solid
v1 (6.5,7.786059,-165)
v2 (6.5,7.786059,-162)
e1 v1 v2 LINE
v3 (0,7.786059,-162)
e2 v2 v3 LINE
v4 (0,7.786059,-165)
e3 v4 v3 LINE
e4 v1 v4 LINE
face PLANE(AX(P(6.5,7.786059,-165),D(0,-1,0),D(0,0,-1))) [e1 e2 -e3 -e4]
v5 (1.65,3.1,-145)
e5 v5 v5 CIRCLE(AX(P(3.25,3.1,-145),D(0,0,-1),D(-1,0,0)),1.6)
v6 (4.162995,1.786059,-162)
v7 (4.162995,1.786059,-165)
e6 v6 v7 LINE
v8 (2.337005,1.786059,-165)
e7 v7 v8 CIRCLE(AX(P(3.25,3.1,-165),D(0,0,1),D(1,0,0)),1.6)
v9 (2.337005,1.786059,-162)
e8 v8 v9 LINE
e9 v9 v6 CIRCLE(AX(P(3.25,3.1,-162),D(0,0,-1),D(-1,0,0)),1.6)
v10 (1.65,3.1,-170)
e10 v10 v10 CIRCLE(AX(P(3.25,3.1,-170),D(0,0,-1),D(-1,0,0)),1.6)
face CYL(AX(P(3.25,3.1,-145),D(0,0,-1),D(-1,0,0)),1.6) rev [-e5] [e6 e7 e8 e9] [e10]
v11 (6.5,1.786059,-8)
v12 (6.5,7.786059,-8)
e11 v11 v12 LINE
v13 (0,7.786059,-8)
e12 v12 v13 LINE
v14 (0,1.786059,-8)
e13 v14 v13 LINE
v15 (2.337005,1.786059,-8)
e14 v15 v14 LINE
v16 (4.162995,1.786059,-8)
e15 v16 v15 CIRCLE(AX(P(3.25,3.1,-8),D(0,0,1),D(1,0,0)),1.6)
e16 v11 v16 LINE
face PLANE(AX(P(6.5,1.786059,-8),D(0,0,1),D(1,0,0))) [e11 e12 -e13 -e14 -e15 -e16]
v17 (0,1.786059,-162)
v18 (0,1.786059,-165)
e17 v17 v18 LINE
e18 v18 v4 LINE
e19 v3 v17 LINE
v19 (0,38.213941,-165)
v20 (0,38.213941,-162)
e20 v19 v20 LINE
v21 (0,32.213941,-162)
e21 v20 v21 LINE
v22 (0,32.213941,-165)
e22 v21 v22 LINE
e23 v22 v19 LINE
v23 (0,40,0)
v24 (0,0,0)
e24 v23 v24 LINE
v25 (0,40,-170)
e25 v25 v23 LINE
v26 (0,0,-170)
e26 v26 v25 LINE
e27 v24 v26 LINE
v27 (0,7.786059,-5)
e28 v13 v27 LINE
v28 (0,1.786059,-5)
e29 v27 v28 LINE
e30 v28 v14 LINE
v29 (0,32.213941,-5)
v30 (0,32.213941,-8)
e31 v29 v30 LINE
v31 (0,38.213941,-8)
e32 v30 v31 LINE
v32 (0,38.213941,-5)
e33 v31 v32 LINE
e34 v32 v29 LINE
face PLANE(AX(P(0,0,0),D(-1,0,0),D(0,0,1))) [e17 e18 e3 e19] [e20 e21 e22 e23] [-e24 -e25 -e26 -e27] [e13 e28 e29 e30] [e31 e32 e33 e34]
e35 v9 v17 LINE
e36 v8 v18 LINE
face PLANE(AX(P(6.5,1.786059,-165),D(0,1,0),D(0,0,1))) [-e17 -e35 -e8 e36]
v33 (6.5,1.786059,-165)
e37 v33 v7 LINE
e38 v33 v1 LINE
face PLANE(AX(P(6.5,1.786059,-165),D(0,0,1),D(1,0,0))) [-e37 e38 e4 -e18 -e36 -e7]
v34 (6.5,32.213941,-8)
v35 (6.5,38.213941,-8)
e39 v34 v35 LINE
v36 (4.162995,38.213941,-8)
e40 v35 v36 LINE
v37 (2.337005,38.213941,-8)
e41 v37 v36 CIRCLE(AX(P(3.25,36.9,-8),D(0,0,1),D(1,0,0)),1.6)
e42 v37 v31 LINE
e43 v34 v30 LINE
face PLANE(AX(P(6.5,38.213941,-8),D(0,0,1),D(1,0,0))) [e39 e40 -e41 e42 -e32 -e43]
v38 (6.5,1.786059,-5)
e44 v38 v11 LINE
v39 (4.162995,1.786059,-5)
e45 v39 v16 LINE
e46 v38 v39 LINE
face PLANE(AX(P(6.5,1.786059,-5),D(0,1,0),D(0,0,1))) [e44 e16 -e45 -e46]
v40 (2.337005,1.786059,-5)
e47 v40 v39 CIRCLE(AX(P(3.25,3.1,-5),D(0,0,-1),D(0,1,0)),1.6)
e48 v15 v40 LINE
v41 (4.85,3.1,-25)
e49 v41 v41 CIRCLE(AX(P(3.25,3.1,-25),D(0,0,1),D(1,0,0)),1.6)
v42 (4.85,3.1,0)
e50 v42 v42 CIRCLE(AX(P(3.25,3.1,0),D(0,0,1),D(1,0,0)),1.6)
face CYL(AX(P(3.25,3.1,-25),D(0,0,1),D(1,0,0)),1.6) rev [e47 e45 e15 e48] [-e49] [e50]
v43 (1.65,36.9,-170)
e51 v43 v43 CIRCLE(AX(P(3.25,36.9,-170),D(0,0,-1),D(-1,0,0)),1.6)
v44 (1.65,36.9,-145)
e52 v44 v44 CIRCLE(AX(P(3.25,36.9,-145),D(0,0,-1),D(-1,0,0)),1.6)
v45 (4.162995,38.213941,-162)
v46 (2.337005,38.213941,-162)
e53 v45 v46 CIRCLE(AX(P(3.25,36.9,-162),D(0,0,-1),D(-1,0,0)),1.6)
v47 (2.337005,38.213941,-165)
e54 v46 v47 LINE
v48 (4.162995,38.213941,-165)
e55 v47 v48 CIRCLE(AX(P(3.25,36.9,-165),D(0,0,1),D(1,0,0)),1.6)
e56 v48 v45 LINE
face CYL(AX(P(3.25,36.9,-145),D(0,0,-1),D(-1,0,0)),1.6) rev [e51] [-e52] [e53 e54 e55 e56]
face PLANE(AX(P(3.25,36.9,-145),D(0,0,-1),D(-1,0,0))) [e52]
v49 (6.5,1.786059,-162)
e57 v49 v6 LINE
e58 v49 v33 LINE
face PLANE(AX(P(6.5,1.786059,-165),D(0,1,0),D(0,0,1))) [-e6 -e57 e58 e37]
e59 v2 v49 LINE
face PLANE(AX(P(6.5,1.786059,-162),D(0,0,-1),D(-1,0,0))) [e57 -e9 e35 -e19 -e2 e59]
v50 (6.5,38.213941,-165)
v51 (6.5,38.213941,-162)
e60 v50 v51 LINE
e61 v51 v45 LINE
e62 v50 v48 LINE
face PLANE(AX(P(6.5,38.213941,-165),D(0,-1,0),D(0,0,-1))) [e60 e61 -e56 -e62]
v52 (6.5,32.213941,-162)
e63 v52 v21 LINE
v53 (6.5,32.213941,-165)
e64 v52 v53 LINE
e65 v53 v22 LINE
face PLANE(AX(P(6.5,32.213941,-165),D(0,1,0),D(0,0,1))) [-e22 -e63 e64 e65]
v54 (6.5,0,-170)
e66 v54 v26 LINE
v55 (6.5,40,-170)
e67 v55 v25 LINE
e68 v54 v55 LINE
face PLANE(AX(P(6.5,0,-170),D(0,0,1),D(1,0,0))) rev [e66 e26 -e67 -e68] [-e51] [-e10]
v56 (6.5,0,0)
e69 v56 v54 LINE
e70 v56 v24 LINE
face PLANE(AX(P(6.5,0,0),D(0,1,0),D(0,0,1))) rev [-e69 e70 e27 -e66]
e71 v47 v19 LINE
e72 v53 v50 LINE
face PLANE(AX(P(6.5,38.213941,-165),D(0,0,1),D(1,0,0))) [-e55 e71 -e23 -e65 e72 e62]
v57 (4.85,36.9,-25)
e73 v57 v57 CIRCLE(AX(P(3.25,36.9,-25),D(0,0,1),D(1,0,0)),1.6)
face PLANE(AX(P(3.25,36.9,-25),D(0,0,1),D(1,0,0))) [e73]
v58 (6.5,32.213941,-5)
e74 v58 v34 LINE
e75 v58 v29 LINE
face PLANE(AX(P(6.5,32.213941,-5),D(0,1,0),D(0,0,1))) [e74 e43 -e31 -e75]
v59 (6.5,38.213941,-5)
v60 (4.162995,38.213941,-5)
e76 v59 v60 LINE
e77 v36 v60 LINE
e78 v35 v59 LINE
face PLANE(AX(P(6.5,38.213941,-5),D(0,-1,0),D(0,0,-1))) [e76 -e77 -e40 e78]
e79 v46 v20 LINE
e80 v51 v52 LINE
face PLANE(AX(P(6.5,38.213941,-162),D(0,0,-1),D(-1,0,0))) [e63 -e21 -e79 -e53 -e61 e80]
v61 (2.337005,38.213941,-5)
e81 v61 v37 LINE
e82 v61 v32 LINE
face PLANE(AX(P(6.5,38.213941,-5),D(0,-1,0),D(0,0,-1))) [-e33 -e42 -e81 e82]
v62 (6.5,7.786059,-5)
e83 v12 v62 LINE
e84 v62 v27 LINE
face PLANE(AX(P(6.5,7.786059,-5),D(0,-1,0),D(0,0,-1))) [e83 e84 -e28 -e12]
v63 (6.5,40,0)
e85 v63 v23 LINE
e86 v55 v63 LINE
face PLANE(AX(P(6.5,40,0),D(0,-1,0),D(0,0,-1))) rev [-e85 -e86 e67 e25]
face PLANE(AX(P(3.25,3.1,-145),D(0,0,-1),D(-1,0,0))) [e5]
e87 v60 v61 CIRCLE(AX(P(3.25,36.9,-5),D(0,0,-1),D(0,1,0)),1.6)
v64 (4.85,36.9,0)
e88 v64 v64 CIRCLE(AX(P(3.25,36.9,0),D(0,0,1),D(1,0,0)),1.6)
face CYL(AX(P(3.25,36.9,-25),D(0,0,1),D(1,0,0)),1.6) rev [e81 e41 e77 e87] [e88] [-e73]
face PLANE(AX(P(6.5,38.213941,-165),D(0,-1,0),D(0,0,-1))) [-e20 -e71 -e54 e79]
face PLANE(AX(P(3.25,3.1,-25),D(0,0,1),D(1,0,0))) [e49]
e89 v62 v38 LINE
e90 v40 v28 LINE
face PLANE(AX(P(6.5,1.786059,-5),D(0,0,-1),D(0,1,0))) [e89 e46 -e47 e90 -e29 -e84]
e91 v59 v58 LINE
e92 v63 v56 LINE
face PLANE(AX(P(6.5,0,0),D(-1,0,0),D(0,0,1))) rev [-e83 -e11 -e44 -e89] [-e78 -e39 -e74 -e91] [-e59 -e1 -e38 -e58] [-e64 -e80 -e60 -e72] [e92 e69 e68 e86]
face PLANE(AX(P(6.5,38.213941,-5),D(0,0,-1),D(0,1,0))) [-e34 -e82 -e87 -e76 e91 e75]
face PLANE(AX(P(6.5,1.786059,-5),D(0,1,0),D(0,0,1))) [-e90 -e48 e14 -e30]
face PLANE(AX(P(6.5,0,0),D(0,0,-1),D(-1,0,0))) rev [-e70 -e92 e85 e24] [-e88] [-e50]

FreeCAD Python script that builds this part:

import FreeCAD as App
import Part
import Sketcher

V = App.Vector


def add_polygon(sketch, points):
    """Adds a closed chain of lines whose ends are joined by coincident constraints."""
    first, n = sketch.GeometryCount, len(points)
    for a, b in zip(points, points[1:] + points[:1]):
        sketch.addGeometry(Part.LineSegment(App.Vector(*a, 0), App.Vector(*b, 0)), False)
    for i in range(n):
        sketch.addConstraint(Sketcher.Constraint("Coincident", first + i, 2, first + (i + 1) % n, 1))

doc = App.newDocument("Part")
body = doc.addObject("PartDesign::Body", "Body")

sketch1 = body.newObject("Sketcher::SketchObject", "Sketch")
sketch1.AttachmentSupport = (doc.getObject("YZ_Plane"), [""])
sketch1.MapMode = "FlatFace"
add_polygon(sketch1, [(40, 0), (0, 0), (0, -170), (40, -170)])
add_polygon(sketch1, [(1.8, -8), (1.8, -5), (7.8, -5), (7.8, -8)])
add_polygon(sketch1, [(1.8, -165), (1.8, -162), (7.8, -162), (7.8, -165)])
add_polygon(sketch1, [(32.2, -8), (32.2, -5), (38.2, -5), (38.2, -8)])
add_polygon(sketch1, [(32.2, -165), (32.2, -162), (38.2, -162), (38.2, -165)])
sketch1.addConstraint(Sketcher.Constraint("Horizontal", 0))
sketch1.addConstraint(Sketcher.Constraint("Vertical", 1))
sketch1.addConstraint(Sketcher.Constraint("Horizontal", 2))
sketch1.addConstraint(Sketcher.Constraint("Vertical", 3))
sketch1.addConstraint(Sketcher.Constraint("Vertical", 4))
sketch1.addConstraint(Sketcher.Constraint("Horizontal", 5))
sketch1.addConstraint(Sketcher.Constraint("Vertical", 6))
sketch1.addConstraint(Sketcher.Constraint("Horizontal", 7))
sketch1.addConstraint(Sketcher.Constraint("Vertical", 8))
sketch1.addConstraint(Sketcher.Constraint("Horizontal", 9))
sketch1.addConstraint(Sketcher.Constraint("Vertical", 10))
sketch1.addConstraint(Sketcher.Constraint("Horizontal", 11))
sketch1.addConstraint(Sketcher.Constraint("Vertical", 12))
sketch1.addConstraint(Sketcher.Constraint("Horizontal", 13))
sketch1.addConstraint(Sketcher.Constraint("Vertical", 14))
sketch1.addConstraint(Sketcher.Constraint("Horizontal", 15))
sketch1.addConstraint(Sketcher.Constraint("Vertical", 16))
sketch1.addConstraint(Sketcher.Constraint("Horizontal", 17))
sketch1.addConstraint(Sketcher.Constraint("Vertical", 18))
sketch1.addConstraint(Sketcher.Constraint("Horizontal", 19))
sketch1.addConstraint(Sketcher.Constraint("Coincident", 0, 2, -1, 1))
sketch1.addConstraint(Sketcher.Constraint("Horizontal", 5, 2, 12, 2))
sketch1.addConstraint(Sketcher.Constraint("Horizontal", 7, 2, 14, 2))
sketch1.addConstraint(Sketcher.Constraint("Horizontal", 9, 2, 16, 2))
sketch1.addConstraint(Sketcher.Constraint("Horizontal", 11, 2, 18, 2))
sketch1.addConstraint(Sketcher.Constraint("Vertical", 7, 2, 8, 2))
sketch1.addConstraint(Sketcher.Constraint("Vertical", 6, 2, 9, 2))
sketch1.addConstraint(Sketcher.Constraint("Vertical", 15, 2, 16, 2))
sketch1.addConstraint(Sketcher.Constraint("Vertical", 14, 2, 17, 2))
sketch1.addConstraint(Sketcher.Constraint("Equal", 11, 13))
sketch1.addConstraint(Sketcher.Constraint("Equal", 6, 8))
sketch1.addConstraint(Sketcher.Constraint("DistanceX", 0, 2, 0, 1, 40.0))
sketch1.addConstraint(Sketcher.Constraint("DistanceX", 5, 1, 5, 2, 6.0))
sketch1.addConstraint(Sketcher.Constraint("DistanceY", 1, 2, 1, 1, 170.0))
sketch1.addConstraint(Sketcher.Constraint("DistanceY", 4, 1, 4, 2, 3.0))
sketch1.addConstraint(Sketcher.Constraint("DistanceY", 4, 2, -1, 1, 5.0))
sketch1.addConstraint(Sketcher.Constraint("DistanceY", 8, 2, -1, 1, 162.0))
sketch1.addConstraint(Sketcher.Constraint("DistanceX", -1, 1, 4, 2, 1.786059))
sketch1.addConstraint(Sketcher.Constraint("DistanceX", -1, 1, 12, 2, 32.213941))
pad1 = body.newObject("PartDesign::Pad", "Pad")
pad1.Profile = sketch1
pad1.Length = 6.5

sketch2 = body.newObject("Sketcher::SketchObject", "Sketch001")
sketch2.AttachmentSupport = (doc.getObject("XY_Plane"), [""])
sketch2.MapMode = "FlatFace"
sketch2.addGeometry(Part.Circle(V(3.2, 36.9, 0), V(0, 0, 1), 1.6), False)
sketch2.addGeometry(Part.Circle(V(3.2, 3.1, 0), V(0, 0, 1), 1.6), False)
sketch2.addConstraint(Sketcher.Constraint("Equal", 0, 1))
sketch2.addConstraint(Sketcher.Constraint("Vertical", 0, 3, 1, 3))
sketch2.addConstraint(Sketcher.Constraint("Diameter", 0, 3.2))
sketch2.addConstraint(Sketcher.Constraint("DistanceY", -1, 1, 0, 3, 36.9))
sketch2.addConstraint(Sketcher.Constraint("DistanceY", -1, 1, 1, 3, 3.1))
sketch2.addConstraint(Sketcher.Constraint("DistanceX", -1, 1, 0, 3, 3.25))
pocket1 = body.newObject("PartDesign::Pocket", "Pocket")
pocket1.Profile = sketch2
pocket1.Length = 25

sketch3 = body.newObject("Sketcher::SketchObject", "Sketch002")
sketch3.AttachmentSupport = (doc.getObject("XY_Plane"), [""])
sketch3.MapMode = "FlatFace"
sketch3.AttachmentOffset = App.Placement(V(0, 0, -145), App.Rotation())
sketch3.addGeometry(Part.Circle(V(3.2, 36.9, 0), V(0, 0, 1), 1.6), False)
sketch3.addGeometry(Part.Circle(V(3.2, 3.1, 0), V(0, 0, 1), 1.6), False)
sketch3.addConstraint(Sketcher.Constraint("Equal", 0, 1))
sketch3.addConstraint(Sketcher.Constraint("Vertical", 0, 3, 1, 3))
sketch3.addConstraint(Sketcher.Constraint("Diameter", 0, 3.2))
sketch3.addConstraint(Sketcher.Constraint("DistanceY", -1, 1, 0, 3, 36.9))
sketch3.addConstraint(Sketcher.Constraint("DistanceY", -1, 1, 1, 3, 3.1))
sketch3.addConstraint(Sketcher.Constraint("DistanceX", -1, 1, 0, 3, 3.25))
pocket2 = body.newObject("PartDesign::Pocket", "Pocket001")
pocket2.Profile = sketch3
pocket2.Length = 25

doc.recompute()
